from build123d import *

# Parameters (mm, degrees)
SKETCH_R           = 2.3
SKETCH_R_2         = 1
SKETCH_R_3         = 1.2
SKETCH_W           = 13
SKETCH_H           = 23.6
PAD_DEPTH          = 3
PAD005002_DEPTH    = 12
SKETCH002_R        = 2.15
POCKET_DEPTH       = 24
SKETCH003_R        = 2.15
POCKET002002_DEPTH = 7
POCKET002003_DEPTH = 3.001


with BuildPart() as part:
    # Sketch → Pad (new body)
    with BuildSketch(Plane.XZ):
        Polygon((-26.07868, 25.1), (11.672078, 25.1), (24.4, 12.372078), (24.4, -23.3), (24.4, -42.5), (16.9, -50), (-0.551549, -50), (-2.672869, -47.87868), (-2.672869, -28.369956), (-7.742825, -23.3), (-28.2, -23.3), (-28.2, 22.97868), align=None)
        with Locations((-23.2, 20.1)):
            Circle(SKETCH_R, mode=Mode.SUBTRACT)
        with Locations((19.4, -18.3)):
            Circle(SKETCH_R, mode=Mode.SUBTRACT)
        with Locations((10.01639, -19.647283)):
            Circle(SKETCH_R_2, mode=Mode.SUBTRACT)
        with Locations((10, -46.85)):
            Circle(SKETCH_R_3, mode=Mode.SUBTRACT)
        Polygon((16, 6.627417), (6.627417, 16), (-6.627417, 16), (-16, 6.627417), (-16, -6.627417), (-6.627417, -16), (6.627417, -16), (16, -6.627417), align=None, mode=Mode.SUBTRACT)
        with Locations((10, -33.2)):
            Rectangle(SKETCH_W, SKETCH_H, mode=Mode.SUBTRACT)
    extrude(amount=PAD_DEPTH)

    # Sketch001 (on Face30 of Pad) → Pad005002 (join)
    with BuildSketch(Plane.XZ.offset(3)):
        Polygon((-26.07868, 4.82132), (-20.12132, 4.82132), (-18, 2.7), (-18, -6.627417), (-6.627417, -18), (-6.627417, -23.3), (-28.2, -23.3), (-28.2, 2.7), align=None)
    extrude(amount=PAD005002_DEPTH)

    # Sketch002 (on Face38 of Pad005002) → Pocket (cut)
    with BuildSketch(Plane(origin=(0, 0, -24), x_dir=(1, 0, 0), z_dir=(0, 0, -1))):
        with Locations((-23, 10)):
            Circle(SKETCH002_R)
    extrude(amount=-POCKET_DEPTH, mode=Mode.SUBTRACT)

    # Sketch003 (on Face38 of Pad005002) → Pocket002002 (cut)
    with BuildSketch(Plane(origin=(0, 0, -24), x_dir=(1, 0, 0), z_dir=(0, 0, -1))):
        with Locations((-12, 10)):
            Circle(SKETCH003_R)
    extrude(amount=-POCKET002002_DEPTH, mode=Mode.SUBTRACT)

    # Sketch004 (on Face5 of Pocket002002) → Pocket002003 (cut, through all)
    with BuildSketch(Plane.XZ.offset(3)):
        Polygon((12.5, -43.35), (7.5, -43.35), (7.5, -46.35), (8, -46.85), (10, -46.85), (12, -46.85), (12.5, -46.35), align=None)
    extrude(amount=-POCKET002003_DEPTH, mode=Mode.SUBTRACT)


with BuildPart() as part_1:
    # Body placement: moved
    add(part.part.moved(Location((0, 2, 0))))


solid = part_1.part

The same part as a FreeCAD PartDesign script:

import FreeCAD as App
import Part
import Sketcher

doc = App.newDocument("Part")
body = doc.addObject("PartDesign::Body", "Body")

# Sketch on XZ plane
sketch1 = body.newObject("Sketcher::SketchObject", "Sketch")
sketch1.AttachmentSupport = (doc.getObject("XZ_Plane"), [""])
sketch1.MapMode = "FlatFace"
sketch1.addGeometry(Part.LineSegment(App.Vector(11.7, 25.1, 0), App.Vector(-26.1, 25.1, 0)), False)
sketch1.addGeometry(Part.LineSegment(App.Vector(-26.1, 25.1, 0), App.Vector(-28.2, 23, 0)), False)
sketch1.addGeometry(Part.LineSegment(App.Vector(-28.2, 23, 0), App.Vector(-28.2, -23.3, 0)), False)
sketch1.addGeometry(Part.LineSegment(App.Vector(-28.2, -23.3, 0), App.Vector(-7.7, -23.3, 0)), False)
sketch1.addGeometry(Part.LineSegment(App.Vector(-7.7, -23.3, 0), App.Vector(-2.7, -28.4, 0)), False)
sketch1.addGeometry(Part.LineSegment(App.Vector(-2.7, -28.4, 0), App.Vector(-2.7, -47.9, 0)), False)
sketch1.addGeometry(Part.LineSegment(App.Vector(-2.7, -47.9, 0), App.Vector(-0.6, -50, 0)), False)
sketch1.addGeometry(Part.LineSegment(App.Vector(-0.6, -50, 0), App.Vector(16.9, -50, 0)), False)
sketch1.addGeometry(Part.LineSegment(App.Vector(16.9, -50, 0), App.Vector(24.4, -42.5, 0)), False)
sketch1.addGeometry(Part.LineSegment(App.Vector(24.4, -42.5, 0), App.Vector(24.4, 12.4, 0)), False)
sketch1.addGeometry(Part.LineSegment(App.Vector(24.4, 12.4, 0), App.Vector(11.7, 25.1, 0)), False)
sketch1.addGeometry(Part.Circle(App.Vector(10, -46.9, 0), App.Vector(0, 0, 1), 1.2), False)
sketch1.addGeometry(Part.LineSegment(App.Vector(3.5, -45, 0), App.Vector(3.5, -21.4, 0)), False)
sketch1.addGeometry(Part.LineSegment(App.Vector(3.5, -21.4, 0), App.Vector(16.5, -21.4, 0)), False)
sketch1.addGeometry(Part.LineSegment(App.Vector(16.5, -21.4, 0), App.Vector(16.5, -45, 0)), False)
sketch1.addGeometry(Part.LineSegment(App.Vector(16.5, -45, 0), App.Vector(3.5, -45, 0)), False)
sketch1.addGeometry(Part.Circle(App.Vector(19.4, -18.3, 0), App.Vector(0, 0, 1), 2.3), False)
sketch1.addGeometry(Part.Circle(App.Vector(10, -19.6, 0), App.Vector(0, 0, 1), 1), False)
sketch1.addGeometry(Part.LineSegment(App.Vector(16, 6.6, 0), App.Vector(16, -6.6, 0)), False)
sketch1.addGeometry(Part.LineSegment(App.Vector(16, -6.6, 0), App.Vector(6.6, -16, 0)), False)
sketch1.addGeometry(Part.LineSegment(App.Vector(6.6, -16, 0), App.Vector(-6.6, -16, 0)), False)
sketch1.addGeometry(Part.LineSegment(App.Vector(-6.6, -16, 0), App.Vector(-16, -6.6, 0)), False)
sketch1.addGeometry(Part.LineSegment(App.Vector(-16, -6.6, 0), App.Vector(-16, 6.6, 0)), False)
sketch1.addGeometry(Part.LineSegment(App.Vector(-16, 6.6, 0), App.Vector(-6.6, 16, 0)), False)
sketch1.addGeometry(Part.LineSegment(App.Vector(-6.6, 16, 0), App.Vector(6.6, 16, 0)), False)
sketch1.addGeometry(Part.LineSegment(App.Vector(6.6, 16, 0), App.Vector(16, 6.6, 0)), False)
sketch1.addGeometry(Part.Circle(App.Vector(-23.2, 20.1, 0), App.Vector(0, 0, 1), 2.3), False)
sketch1.addConstraint(Sketcher.Constraint("Coincident", 0, 2, 1, 1))
sketch1.addConstraint(Sketcher.Constraint("Coincident", 1, 2, 2, 1))
sketch1.addConstraint(Sketcher.Constraint("Coincident", 2, 2, 3, 1))
sketch1.addConstraint(Sketcher.Constraint("Coincident", 3, 2, 4, 1))
sketch1.addConstraint(Sketcher.Constraint("Coincident", 4, 2, 5, 1))
sketch1.addConstraint(Sketcher.Constraint("Coincident", 5, 2, 6, 1))
sketch1.addConstraint(Sketcher.Constraint("Coincident", 6, 2, 7, 1))
sketch1.addConstraint(Sketcher.Constraint("Coincident", 7, 2, 8, 1))
sketch1.addConstraint(Sketcher.Constraint("Coincident", 8, 2, 9, 1))
sketch1.addConstraint(Sketcher.Constraint("Coincident", 9, 2, 10, 1))
sketch1.addConstraint(Sketcher.Constraint("Coincident", 10, 2, 0, 1))
sketch1.addConstraint(Sketcher.Constraint("Coincident", 12, 2, 13, 1))
sketch1.addConstraint(Sketcher.Constraint("Coincident", 13, 2, 14, 1))
sketch1.addConstraint(Sketcher.Constraint("Coincident", 14, 2, 15, 1))
sketch1.addConstraint(Sketcher.Constraint("Coincident", 15, 2, 12, 1))
sketch1.addConstraint(Sketcher.Constraint("Coincident", 18, 2, 19, 1))
sketch1.addConstraint(Sketcher.Constraint("Coincident", 19, 2, 20, 1))
sketch1.addConstraint(Sketcher.Constraint("Coincident", 20, 2, 21, 1))
sketch1.addConstraint(Sketcher.Constraint("Coincident", 21, 2, 22, 1))
sketch1.addConstraint(Sketcher.Constraint("Coincident", 22, 2, 23, 1))
sketch1.addConstraint(Sketcher.Constraint("Coincident", 23, 2, 24, 1))
sketch1.addConstraint(Sketcher.Constraint("Coincident", 24, 2, 25, 1))
sketch1.addConstraint(Sketcher.Constraint("Coincident", 25, 2, 18, 1))
sketch1.addConstraint(Sketcher.Constraint("Horizontal", 0))
sketch1.addConstraint(Sketcher.Constraint("Vertical", 2))
sketch1.addConstraint(Sketcher.Constraint("Horizontal", 3))
sketch1.addConstraint(Sketcher.Constraint("Vertical", 5))
sketch1.addConstraint(Sketcher.Constraint("Horizontal", 7))
sketch1.addConstraint(Sketcher.Constraint("Vertical", 9))
sketch1.addConstraint(Sketcher.Constraint("Vertical", 12))
sketch1.addConstraint(Sketcher.Constraint("Horizontal", 13))
sketch1.addConstraint(Sketcher.Constraint("Vertical", 14))
sketch1.addConstraint(Sketcher.Constraint("Horizontal", 15))
sketch1.addConstraint(Sketcher.Constraint("Vertical", 18))
sketch1.addConstraint(Sketcher.Constraint("Horizontal", 20))
sketch1.addConstraint(Sketcher.Constraint("Vertical", 22))
sketch1.addConstraint(Sketcher.Constraint("Horizontal", 24))
sketch1.addConstraint(Sketcher.Constraint("Equal", 16, 26))
sketch1.addConstraint(Sketcher.Constraint("Symmetric", 18, 2, 22, 2, -1, 1))
sketch1.addConstraint(Sketcher.Constraint("Symmetric", 19, 2, 23, 2, -1, 1))
sketch1.addConstraint(Sketcher.Constraint("Perpendicular", 1, 4))
sketch1.addConstraint(Sketcher.Constraint("Parallel", 4, 6))
sketch1.addConstraint(Sketcher.Constraint("Perpendicular", 6, 8))
sketch1.addConstraint(Sketcher.Constraint("Perpendicular", 8, 10))
sketch1.addConstraint(Sketcher.Constraint("Perpendicular", 10, 19))
sketch1.addConstraint(Sketcher.Constraint("Perpendicular", 19, 21))
sketch1.addConstraint(Sketcher.Constraint("Perpendicular", 23, 25))
sketch1.addConstraint(Sketcher.Constraint("Horizontal", 18, 2, 21, 2))
sketch1.addConstraint(Sketcher.Constraint("Horizontal", 22, 2, 25, 2))
sketch1.addConstraint(Sketcher.Constraint("Vertical", 20, 2, 23, 2))
sketch1.addConstraint(Sketcher.Constraint("Equal", 24, 18))
sketch1.addConstraint(Sketcher.Constraint("Equal", 1, 6))
sketch1.addConstraint(Sketcher.Constraint("Diameter", 17, 2.0))
sketch1.addConstraint(Sketcher.Constraint("Diameter", 11, 2.4))
sketch1.addConstraint(Sketcher.Constraint("Diameter", 16, 4.6))
sketch1.addConstraint(Sketcher.Constraint("DistanceX", 13, 1, 13, 2, 13.0))
sketch1.addConstraint(Sketcher.Constraint("Distance", 1, 3.0))
sketch1.addConstraint(Sketcher.Constraint("Distance", 10, 18.0))
sketch1.addConstraint(Sketcher.Constraint("DistanceY", 12, 1, 12, 2, 23.6))
sketch1.addConstraint(Sketcher.Constraint("DistanceX", -1, 1, 11, 3, 10.0))
sketch1.addConstraint(Sketcher.Constraint("DistanceY", 6, 2, -1, 1, 50.0))
sketch1.addConstraint(Sketcher.Constraint("DistanceY", 14, 2, -1, 1, 45.0))
sketch1.addConstraint(Sketcher.Constraint("DistanceX", -1, 1, 18, 2, 16.0))
sketch1.addConstraint(Sketcher.Constraint("DistanceY", 26, 3, 0, 2, 5.0))
sketch1.addConstraint(Sketcher.Constraint("DistanceX", 1, 2, 26, 3, 5.0))
sketch1.addConstraint(Sketcher.Constraint("DistanceY", 2, 2, 16, 3, 5.0))
sketch1.addConstraint(Sketcher.Constraint("DistanceX", 16, 3, 8, 2, 5.0))
sketch1.addConstraint(Sketcher.Constraint("DistanceX", -1, 1, 16, 3, 19.4))
sketch1.addConstraint(Sketcher.Constraint("DistanceY", 16, 3, -1, 1, 18.3))
sketch1.addConstraint(Sketcher.Constraint("DistanceX", 26, 3, -1, 1, 23.2))
sketch1.addConstraint(Sketcher.Constraint("DistanceY", -1, 1, 26, 3, 20.1))
sketch1.addConstraint(Sketcher.Constraint("DistanceX", -1, 1, 7, 2, 16.9))
sketch1.addConstraint(Sketcher.Constraint("DistanceX", -1, 1, 12, 2, 3.5))
sketch1.addConstraint(Sketcher.Constraint("Distance", 4, 7.170001))
sketch1.addConstraint(Sketcher.Constraint("DistanceY", 11, 3, -1, 1, 46.85))
sketch1.addConstraint(Sketcher.Constraint("DistanceX", 7, 1, 7, 2, 17.451549))
sketch1.addConstraint(Sketcher.Constraint("DistanceX", 20, 2, 20, 1, 13.254834))
sketch1.addConstraint(Sketcher.Constraint("DistanceX", -1, 1, 17, 3, 10.01639))
sketch1.addConstraint(Sketcher.Constraint("DistanceY", 17, 3, 9, 2, 32.019361))
pad1 = body.newObject("PartDesign::Pad", "Pad")
pad1.Profile = sketch1
pad1.Length = 3

# Sketch on XZ plane
sketch2 = body.newObject("Sketcher::SketchObject", "Sketch001")
sketch2.AttachmentSupport = (doc.getObject("XZ_Plane"), [""])
sketch2.MapMode = "FlatFace"
sketch2.AttachmentOffset = App.Placement(App.Vector(0, 0, 3), App.Rotation())
sketch2.addGeometry(Part.LineSegment(App.Vector(-20.1, 4.8, 0), App.Vector(-26.1, 4.8, 0)), False)
sketch2.addGeometry(Part.LineSegment(App.Vector(-26.1, 4.8, 0), App.Vector(-28.2, 2.7, 0)), False)
sketch2.addGeometry(Part.LineSegment(App.Vector(-28.2, 2.7, 0), App.Vector(-28.2, -23.3, 0)), False)
sketch2.addGeometry(Part.LineSegment(App.Vector(-28.2, -23.3, 0), App.Vector(-6.6, -23.3, 0)), False)
sketch2.addGeometry(Part.LineSegment(App.Vector(-6.6, -23.3, 0), App.Vector(-6.6, -18, 0)), False)
sketch2.addGeometry(Part.LineSegment(App.Vector(-6.6, -18, 0), App.Vector(-18, -6.6, 0)), False)
sketch2.addGeometry(Part.LineSegment(App.Vector(-18, -6.6, 0), App.Vector(-18, 2.7, 0)), False)
sketch2.addGeometry(Part.LineSegment(App.Vector(-18, 2.7, 0), App.Vector(-20.1, 4.8, 0)), False)
sketch2.addConstraint(Sketcher.Constraint("Coincident", 0, 2, 1, 1))
sketch2.addConstraint(Sketcher.Constraint("Coincident", 1, 2, 2, 1))
sketch2.addConstraint(Sketcher.Constraint("Coincident", 2, 2, 3, 1))
sketch2.addConstraint(Sketcher.Constraint("Coincident", 3, 2, 4, 1))
sketch2.addConstraint(Sketcher.Constraint("Coincident", 4, 2, 5, 1))
sketch2.addConstraint(Sketcher.Constraint("Coincident", 5, 2, 6, 1))
sketch2.addConstraint(Sketcher.Constraint("Coincident", 6, 2, 7, 1))
sketch2.addConstraint(Sketcher.Constraint("Coincident", 7, 2, 0, 1))
sketch2.addConstraint(Sketcher.Constraint("Horizontal", 0))
sketch2.addConstraint(Sketcher.Constraint("Vertical", 2))
sketch2.addConstraint(Sketcher.Constraint("Horizontal", 3))
sketch2.addConstraint(Sketcher.Constraint("Vertical", 4))
sketch2.addConstraint(Sketcher.Constraint("Vertical", 6))
sketch2.addConstraint(Sketcher.Constraint("Perpendicular", 1, 5))
sketch2.addConstraint(Sketcher.Constraint("Parallel", 5, 7))
sketch2.addConstraint(Sketcher.Constraint("Horizontal", 1, 2, 6, 2))
sketch2.addConstraint(Sketcher.Constraint("Equal", 1, 7))
sketch2.addConstraint(Sketcher.Constraint("DistanceY", 2, 2, 2, 1, 26.0))
sketch2.addConstraint(Sketcher.Constraint("Distance", 1, 3.0))
sketch2.addConstraint(Sketcher.Constraint("DistanceY", 4, 1, 4, 2, 5.3))
sketch2.addConstraint(Sketcher.Constraint("DistanceY", 4, 2, -1, 1, 18.0))
sketch2.addConstraint(Sketcher.Constraint("DistanceX", 5, 2, -1, 1, 18.0))
sketch2.addConstraint(Sketcher.Constraint("DistanceX", 1, 2, -1, 1, 28.2))
sketch2.addConstraint(Sketcher.Constraint("Distance", 5, 16.083261))
pad2 = body.newObject("PartDesign::Pad", "Pad001")
pad2.Profile = sketch2
pad2.Length = 12

# Sketch on XY plane
sketch3 = body.newObject("Sketcher::SketchObject", "Sketch002")
sketch3.AttachmentSupport = (doc.getObject("XY_Plane"), [""])
sketch3.MapMode = "FlatFace"
sketch3.AttachmentOffset = App.Placement(App.Vector(0, 0, -24), App.Rotation())
sketch3.addGeometry(Part.Circle(App.Vector(-23, -10, 0), App.Vector(0, 0, 1), 2.1), False)
sketch3.addConstraint(Sketcher.Constraint("Diameter", 0, 4.3))
sketch3.addConstraint(Sketcher.Constraint("DistanceX", 0, 3, -1, 1, 23.0))
sketch3.addConstraint(Sketcher.Constraint("DistanceY", 0, 3, -1, 1, 10.0))
pocket1 = body.newObject("PartDesign::Pocket", "Pocket")
pocket1.Profile = sketch3
pocket1.Length = 24
pocket1.Reversed = True

# Sketch on XY plane
sketch4 = body.newObject("Sketcher::SketchObject", "Sketch003")
sketch4.AttachmentSupport = (doc.getObject("XY_Plane"), [""])
sketch4.MapMode = "FlatFace"
sketch4.AttachmentOffset = App.Placement(App.Vector(0, 0, -24), App.Rotation())
sketch4.addGeometry(Part.Circle(App.Vector(-12, -10, 0), App.Vector(0, 0, 1), 2.1), False)
sketch4.addConstraint(Sketcher.Constraint("Diameter", 0, 4.3))
sketch4.addConstraint(Sketcher.Constraint("DistanceX", 0, 3, -1, 1, 12.0))
sketch4.addConstraint(Sketcher.Constraint("DistanceY", 0, 3, -1, 1, 10.0))
pocket2 = body.newObject("PartDesign::Pocket", "Pocket001")
pocket2.Profile = sketch4
pocket2.Length = 7
pocket2.Reversed = True

# Sketch on XZ plane
sketch5 = body.newObject("Sketcher::SketchObject", "Sketch004")
sketch5.AttachmentSupport = (doc.getObject("XZ_Plane"), [""])
sketch5.MapMode = "FlatFace"
sketch5.AttachmentOffset = App.Placement(App.Vector(0, 0, 3), App.Rotation())
sketch5.addGeometry(Part.LineSegment(App.Vector(12.5, -43.4, 0), App.Vector(7.5, -43.4, 0)), False)
sketch5.addGeometry(Part.LineSegment(App.Vector(7.5, -43.4, 0), App.Vector(7.5, -46.4, 0)), False)
sketch5.addGeometry(Part.LineSegment(App.Vector(7.5, -46.4, 0), App.Vector(8, -46.9, 0)), False)
sketch5.addGeometry(Part.LineSegment(App.Vector(8, -46.9, 0), App.Vector(12, -46.9, 0)), False)
sketch5.addGeometry(Part.LineSegment(App.Vector(12, -46.9, 0), App.Vector(12.5, -46.4, 0)), False)
sketch5.addGeometry(Part.LineSegment(App.Vector(12.5, -46.4, 0), App.Vector(12.5, -43.4, 0)), False)
sketch5.addConstraint(Sketcher.Constraint("Coincident", 0, 2, 1, 1))
sketch5.addConstraint(Sketcher.Constraint("Coincident", 1, 2, 2, 1))
sketch5.addConstraint(Sketcher.Constraint("Coincident", 2, 2, 3, 1))
sketch5.addConstraint(Sketcher.Constraint("Coincident", 3, 2, 4, 1))
sketch5.addConstraint(Sketcher.Constraint("Coincident", 4, 2, 5, 1))
sketch5.addConstraint(Sketcher.Constraint("Coincident", 5, 2, 0, 1))
sketch5.addConstraint(Sketcher.Constraint("Horizontal", 0))
sketch5.addConstraint(Sketcher.Constraint("Vertical", 1))
sketch5.addConstraint(Sketcher.Constraint("Horizontal", 3))
sketch5.addConstraint(Sketcher.Constraint("Vertical", 5))
sketch5.addConstraint(Sketcher.Constraint("Perpendicular", 2, 4))
sketch5.addConstraint(Sketcher.Constraint("Horizontal", 1, 2, 4, 2))
sketch5.addConstraint(Sketcher.Constraint("Equal", 2, 4))
sketch5.addConstraint(Sketcher.Constraint("DistanceX", 0, 2, 0, 1, 5.0))
sketch5.addConstraint(Sketcher.Constraint("DistanceX", 3, 1, 3, 2, 4.0))
sketch5.addConstraint(Sketcher.Constraint("DistanceY", 1, 2, 1, 1, 3.0))
sketch5.addConstraint(Sketcher.Constraint("DistanceX", -1, 1, 2, 2, 8.0))
sketch5.addConstraint(Sketcher.Constraint("DistanceY", 0, 2, -1, 1, 43.35))
pocket3 = body.newObject("PartDesign::Pocket", "Pocket002")
pocket3.Profile = sketch5
pocket3.Type = "ThroughAll"
body2 = doc.addObject("PartDesign::Body", "Body001")
doc.recompute()

body.Placement = App.Placement(App.Vector(0, 2, 0), App.Rotation(App.Vector(0, 0, 1), 0))
boolean = body2.newObject("PartDesign::Boolean", "Boolean")
boolean.Type = "Fuse"
boolean.addObjects([body])

doc.recompute()
